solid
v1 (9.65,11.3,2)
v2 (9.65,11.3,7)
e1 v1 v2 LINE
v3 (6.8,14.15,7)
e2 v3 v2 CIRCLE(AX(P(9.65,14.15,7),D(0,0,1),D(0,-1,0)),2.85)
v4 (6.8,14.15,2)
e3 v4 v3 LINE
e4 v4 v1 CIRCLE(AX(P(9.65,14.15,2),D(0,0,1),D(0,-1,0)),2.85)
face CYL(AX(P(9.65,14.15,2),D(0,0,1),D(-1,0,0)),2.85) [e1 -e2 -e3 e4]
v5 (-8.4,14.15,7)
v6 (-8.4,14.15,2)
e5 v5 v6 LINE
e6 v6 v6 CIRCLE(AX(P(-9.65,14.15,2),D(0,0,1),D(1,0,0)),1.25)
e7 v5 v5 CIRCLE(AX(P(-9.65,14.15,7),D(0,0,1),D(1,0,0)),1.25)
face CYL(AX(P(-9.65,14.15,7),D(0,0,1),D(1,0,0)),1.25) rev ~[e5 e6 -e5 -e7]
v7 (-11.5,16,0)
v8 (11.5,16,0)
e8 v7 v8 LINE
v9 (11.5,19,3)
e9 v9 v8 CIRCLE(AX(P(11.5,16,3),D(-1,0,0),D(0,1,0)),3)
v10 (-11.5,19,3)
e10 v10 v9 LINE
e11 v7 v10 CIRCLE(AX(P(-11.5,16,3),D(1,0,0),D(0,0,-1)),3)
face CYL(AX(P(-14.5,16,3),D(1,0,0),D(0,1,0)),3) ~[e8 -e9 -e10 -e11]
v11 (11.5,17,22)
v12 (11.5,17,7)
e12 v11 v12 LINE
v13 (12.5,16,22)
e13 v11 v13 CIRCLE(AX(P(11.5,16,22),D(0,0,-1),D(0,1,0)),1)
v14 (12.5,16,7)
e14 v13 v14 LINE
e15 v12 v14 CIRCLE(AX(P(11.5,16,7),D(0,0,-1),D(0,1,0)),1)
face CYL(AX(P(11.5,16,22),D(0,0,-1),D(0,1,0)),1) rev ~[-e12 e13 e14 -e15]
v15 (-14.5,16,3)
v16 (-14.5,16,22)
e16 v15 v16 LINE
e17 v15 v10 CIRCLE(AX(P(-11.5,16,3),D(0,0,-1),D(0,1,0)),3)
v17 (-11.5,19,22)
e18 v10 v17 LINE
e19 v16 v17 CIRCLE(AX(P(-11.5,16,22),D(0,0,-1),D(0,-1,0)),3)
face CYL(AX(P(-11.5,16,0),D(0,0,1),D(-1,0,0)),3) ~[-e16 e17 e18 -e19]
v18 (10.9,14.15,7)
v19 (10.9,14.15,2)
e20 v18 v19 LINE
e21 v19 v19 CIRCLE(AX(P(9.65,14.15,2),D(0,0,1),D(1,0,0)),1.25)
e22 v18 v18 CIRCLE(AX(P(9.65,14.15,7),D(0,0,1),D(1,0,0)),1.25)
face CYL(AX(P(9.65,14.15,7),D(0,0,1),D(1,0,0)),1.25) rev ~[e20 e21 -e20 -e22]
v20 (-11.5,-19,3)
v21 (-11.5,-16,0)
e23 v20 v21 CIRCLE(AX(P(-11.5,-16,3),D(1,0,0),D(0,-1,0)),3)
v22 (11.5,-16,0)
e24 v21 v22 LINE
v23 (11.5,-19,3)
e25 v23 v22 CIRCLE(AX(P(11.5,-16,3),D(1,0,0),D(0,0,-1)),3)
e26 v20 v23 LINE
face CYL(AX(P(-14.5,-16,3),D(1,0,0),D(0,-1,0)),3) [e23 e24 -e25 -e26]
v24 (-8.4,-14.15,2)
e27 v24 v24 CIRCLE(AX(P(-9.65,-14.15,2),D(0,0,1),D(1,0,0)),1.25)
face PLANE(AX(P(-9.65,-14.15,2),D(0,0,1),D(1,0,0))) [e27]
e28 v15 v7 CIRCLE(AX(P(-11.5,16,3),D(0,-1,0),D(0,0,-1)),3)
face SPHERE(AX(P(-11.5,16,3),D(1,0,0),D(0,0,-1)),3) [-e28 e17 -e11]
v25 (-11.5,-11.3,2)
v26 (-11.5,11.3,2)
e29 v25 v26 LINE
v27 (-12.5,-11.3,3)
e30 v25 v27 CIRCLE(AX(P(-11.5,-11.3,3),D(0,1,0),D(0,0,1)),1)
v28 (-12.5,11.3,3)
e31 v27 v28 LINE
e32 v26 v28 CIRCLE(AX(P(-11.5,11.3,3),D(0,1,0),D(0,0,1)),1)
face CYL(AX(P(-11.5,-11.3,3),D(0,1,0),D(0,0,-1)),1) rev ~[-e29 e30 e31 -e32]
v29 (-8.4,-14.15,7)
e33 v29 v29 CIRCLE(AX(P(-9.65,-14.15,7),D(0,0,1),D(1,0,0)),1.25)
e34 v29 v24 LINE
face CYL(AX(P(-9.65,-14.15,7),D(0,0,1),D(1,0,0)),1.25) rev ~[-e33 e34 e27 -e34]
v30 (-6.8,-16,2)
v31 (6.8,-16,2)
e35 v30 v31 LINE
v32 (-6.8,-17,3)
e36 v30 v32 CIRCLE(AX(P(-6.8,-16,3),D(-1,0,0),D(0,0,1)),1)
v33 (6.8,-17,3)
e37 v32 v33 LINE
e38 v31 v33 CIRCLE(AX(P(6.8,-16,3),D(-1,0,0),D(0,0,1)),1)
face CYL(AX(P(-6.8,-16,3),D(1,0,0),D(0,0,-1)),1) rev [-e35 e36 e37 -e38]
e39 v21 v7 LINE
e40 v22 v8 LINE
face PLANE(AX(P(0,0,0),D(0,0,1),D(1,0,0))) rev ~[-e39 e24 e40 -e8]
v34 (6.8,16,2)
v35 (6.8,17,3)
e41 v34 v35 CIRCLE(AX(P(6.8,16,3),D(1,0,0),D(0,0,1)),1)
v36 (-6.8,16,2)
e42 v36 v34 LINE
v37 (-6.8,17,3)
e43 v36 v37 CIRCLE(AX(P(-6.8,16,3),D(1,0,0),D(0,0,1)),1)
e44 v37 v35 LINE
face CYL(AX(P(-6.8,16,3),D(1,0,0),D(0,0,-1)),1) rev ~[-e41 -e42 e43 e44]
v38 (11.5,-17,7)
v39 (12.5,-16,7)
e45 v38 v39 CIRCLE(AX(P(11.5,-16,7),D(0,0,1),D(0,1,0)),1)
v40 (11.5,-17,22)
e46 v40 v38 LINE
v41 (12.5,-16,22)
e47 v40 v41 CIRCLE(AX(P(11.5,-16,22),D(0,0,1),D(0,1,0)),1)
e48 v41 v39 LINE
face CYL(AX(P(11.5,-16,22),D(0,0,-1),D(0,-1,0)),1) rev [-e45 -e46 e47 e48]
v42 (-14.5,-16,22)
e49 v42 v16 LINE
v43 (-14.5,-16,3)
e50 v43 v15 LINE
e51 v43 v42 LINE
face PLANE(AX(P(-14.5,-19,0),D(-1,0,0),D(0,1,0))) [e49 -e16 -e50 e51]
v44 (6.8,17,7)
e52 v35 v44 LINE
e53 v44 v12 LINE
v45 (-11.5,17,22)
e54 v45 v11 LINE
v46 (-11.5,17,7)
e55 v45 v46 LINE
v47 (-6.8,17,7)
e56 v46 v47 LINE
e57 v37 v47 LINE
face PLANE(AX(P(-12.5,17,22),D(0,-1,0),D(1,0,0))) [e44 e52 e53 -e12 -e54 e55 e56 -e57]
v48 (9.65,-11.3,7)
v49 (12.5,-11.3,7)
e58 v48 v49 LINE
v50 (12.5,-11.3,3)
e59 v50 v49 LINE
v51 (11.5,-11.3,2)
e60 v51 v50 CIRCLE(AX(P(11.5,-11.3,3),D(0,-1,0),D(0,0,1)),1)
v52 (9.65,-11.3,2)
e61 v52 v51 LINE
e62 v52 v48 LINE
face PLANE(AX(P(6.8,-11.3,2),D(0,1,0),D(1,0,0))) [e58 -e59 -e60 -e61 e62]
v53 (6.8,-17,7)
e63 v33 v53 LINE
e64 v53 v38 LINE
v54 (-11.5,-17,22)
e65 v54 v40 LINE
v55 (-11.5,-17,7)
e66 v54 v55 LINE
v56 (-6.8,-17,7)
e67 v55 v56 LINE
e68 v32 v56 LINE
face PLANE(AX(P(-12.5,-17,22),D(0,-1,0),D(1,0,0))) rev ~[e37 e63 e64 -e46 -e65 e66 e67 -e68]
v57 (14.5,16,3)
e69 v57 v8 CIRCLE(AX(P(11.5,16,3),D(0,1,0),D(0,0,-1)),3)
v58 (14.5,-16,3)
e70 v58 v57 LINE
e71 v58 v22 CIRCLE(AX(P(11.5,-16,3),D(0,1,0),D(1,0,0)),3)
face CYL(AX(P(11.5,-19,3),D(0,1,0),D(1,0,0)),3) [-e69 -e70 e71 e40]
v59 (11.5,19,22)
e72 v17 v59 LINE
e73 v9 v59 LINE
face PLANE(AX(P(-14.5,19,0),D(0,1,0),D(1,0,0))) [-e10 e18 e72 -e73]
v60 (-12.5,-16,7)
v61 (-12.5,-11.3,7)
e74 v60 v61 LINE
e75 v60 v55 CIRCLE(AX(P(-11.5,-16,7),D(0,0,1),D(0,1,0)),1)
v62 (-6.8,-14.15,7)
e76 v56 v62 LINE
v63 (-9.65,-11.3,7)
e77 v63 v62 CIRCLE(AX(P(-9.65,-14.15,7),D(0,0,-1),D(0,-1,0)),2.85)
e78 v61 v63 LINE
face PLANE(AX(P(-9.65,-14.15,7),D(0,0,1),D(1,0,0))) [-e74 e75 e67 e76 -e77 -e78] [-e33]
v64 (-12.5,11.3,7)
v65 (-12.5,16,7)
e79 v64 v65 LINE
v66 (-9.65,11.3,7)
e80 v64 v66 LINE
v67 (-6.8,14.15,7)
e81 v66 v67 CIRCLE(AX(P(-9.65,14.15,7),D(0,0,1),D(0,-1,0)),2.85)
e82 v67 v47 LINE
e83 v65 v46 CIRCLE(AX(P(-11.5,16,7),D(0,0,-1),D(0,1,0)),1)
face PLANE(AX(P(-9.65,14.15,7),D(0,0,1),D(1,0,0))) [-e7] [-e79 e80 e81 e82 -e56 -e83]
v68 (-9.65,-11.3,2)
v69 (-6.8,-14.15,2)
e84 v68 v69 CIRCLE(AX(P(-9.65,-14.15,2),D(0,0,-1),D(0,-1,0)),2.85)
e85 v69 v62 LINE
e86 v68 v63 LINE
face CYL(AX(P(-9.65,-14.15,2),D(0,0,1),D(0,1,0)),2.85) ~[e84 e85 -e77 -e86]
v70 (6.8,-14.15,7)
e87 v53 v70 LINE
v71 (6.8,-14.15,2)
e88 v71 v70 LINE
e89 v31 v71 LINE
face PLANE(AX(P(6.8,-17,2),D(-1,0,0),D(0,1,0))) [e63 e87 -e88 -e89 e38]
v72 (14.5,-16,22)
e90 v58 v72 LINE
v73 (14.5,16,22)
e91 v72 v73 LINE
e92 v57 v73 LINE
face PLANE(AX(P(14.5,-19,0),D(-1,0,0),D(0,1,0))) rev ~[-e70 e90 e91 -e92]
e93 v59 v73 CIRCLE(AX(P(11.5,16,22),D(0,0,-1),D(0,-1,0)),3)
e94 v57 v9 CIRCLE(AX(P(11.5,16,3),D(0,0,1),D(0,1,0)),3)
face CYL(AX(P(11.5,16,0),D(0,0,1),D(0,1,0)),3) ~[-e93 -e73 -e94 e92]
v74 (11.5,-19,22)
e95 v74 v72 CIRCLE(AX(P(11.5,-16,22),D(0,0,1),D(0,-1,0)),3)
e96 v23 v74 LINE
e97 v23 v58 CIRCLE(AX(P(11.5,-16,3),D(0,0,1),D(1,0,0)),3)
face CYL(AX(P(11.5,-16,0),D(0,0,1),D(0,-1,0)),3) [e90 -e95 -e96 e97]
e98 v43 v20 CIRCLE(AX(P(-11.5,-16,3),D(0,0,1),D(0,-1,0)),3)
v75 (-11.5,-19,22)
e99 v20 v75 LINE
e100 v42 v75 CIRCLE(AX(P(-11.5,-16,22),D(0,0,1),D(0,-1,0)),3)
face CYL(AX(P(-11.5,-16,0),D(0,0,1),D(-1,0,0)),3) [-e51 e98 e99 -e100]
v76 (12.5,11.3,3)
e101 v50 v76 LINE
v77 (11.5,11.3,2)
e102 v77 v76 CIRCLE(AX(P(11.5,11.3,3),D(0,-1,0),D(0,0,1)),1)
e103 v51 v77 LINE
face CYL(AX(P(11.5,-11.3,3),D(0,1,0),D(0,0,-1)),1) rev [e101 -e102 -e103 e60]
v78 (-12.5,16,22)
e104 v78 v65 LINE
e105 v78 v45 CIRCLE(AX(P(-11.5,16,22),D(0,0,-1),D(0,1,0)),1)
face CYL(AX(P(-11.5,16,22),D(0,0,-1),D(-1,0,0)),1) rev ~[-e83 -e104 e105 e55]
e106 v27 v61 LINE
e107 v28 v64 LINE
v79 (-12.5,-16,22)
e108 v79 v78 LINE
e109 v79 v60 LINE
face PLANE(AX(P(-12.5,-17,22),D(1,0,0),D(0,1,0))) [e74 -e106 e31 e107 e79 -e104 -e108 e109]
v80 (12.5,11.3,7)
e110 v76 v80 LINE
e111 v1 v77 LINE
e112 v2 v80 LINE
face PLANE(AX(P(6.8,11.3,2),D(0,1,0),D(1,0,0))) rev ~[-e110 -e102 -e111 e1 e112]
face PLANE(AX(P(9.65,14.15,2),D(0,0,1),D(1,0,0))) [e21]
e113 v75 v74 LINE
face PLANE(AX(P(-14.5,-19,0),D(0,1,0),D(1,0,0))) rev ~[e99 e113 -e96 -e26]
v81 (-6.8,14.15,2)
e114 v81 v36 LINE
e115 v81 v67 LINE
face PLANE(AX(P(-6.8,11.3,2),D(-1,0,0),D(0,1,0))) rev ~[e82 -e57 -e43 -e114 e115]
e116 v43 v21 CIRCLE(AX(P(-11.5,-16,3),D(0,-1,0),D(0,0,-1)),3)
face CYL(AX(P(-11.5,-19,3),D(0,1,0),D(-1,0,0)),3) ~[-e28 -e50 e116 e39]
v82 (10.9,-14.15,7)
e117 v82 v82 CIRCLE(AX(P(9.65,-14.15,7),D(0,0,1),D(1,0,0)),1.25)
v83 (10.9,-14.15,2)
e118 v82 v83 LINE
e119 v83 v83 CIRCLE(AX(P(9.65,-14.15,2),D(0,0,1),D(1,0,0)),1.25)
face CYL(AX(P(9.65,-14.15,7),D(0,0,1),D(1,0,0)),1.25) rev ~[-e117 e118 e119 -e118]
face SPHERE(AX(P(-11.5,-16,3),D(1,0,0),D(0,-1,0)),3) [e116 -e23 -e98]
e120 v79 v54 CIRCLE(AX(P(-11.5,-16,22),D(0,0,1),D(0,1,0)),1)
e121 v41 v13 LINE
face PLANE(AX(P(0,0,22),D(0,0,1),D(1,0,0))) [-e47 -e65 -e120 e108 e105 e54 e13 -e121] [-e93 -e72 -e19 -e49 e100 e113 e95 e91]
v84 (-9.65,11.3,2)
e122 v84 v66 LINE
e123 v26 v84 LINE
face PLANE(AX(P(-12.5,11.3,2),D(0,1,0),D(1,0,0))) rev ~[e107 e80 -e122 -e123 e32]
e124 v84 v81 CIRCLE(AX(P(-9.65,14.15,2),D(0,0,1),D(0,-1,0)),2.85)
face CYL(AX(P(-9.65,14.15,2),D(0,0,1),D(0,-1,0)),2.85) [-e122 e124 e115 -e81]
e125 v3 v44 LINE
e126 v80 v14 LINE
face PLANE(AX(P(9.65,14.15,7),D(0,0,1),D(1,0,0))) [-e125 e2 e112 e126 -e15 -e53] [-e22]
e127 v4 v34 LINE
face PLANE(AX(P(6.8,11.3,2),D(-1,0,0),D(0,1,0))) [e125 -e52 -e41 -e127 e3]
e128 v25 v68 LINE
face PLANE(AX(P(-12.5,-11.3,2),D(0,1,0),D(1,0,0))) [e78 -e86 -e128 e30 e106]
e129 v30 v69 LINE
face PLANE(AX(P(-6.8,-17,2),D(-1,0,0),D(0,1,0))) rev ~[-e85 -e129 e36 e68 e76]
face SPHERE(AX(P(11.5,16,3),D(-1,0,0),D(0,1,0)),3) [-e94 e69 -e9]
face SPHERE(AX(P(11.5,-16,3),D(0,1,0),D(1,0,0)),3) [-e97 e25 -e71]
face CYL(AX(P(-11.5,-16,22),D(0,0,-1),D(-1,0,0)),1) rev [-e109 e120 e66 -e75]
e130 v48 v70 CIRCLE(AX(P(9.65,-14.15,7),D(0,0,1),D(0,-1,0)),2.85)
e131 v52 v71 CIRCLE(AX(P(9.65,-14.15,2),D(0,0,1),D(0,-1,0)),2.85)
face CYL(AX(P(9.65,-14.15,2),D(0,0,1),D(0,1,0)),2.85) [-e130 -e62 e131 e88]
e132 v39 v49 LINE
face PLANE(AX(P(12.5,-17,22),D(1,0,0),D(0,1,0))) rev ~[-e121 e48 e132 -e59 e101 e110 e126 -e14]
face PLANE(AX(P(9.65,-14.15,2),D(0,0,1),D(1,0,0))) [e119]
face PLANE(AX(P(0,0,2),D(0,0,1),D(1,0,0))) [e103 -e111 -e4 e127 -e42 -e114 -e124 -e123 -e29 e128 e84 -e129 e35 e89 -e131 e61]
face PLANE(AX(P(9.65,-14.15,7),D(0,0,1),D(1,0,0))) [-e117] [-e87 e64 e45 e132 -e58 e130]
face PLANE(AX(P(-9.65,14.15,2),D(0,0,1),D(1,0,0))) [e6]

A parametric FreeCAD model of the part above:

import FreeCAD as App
import Part
import Sketcher
from FreeCAD import Vector
Q = App.Units.Quantity


def edges_at(feature, points):
    """Names of the edges that pass closest to the given points."""
    edges = feature.Shape.Edges
    near = lambda p: min(range(len(edges)), key=lambda i: edges[i].distToShape(Part.Vertex(*p))[0])
    return sorted({f"Edge{near(p) + 1}" for p in points})


def add_polygon(sketch, points):
    """Adds a closed chain of lines whose ends are joined by coincident constraints."""
    first, n = sketch.GeometryCount, len(points)
    for a, b in zip(points, points[1:] + points[:1]):
        sketch.addGeometry(Part.LineSegment(App.Vector(*a, 0), App.Vector(*b, 0)), False)
    for i in range(n):
        sketch.addConstraint(Sketcher.Constraint("Coincident", first + i, 2, first + (i + 1) % n, 1))

doc = App.newDocument("Part")
body = doc.addObject("PartDesign::Body", "Body")

# Sketch on XY plane
sketch1 = body.newObject("Sketcher::SketchObject", "Sketch")
sketch1.AttachmentSupport = (doc.getObject("XY_Plane"), [""])
sketch1.MapMode = "FlatFace"
add_polygon(sketch1, [(-14, 19), (-14, -19), (14, -19), (14, 19)])  # lines 0-3
sketch1.addConstraint(Sketcher.Constraint("Vertical", 0))
sketch1.addConstraint(Sketcher.Constraint("Horizontal", 1))
sketch1.addConstraint(Sketcher.Constraint("Vertical", 2))
sketch1.addConstraint(Sketcher.Constraint("Horizontal", 3))
sketch1.addConstraint(Sketcher.Constraint("Symmetric", 0, 2, 2, 2, -1, 1))
sketch1.addConstraint(Sketcher.Constraint("DistanceX", 1, 1, 1, 2, Q("29 mm")))
sketch1.addConstraint(Sketcher.Constraint("DistanceY", 0, 2, 0, 1, Q("38 mm")))
pad1 = body.newObject("PartDesign::Pad", "Pad")
pad1.Profile = sketch1
pad1.Length = 22

# Sketch on XY plane
sketch2 = body.newObject("Sketcher::SketchObject", "Sketch001")
sketch2.AttachmentSupport = (doc.getObject("XY_Plane"), [""])
sketch2.MapMode = "FlatFace"
sketch2.AttachmentOffset = App.Placement(Vector(0, 0, 22), App.Rotation())
add_polygon(sketch2, [(-12, 17), (-12, -17), (12, -17), (12, 17)])  # lines 0-3
sketch2.addConstraint(Sketcher.Constraint("Vertical", 0))
sketch2.addConstraint(Sketcher.Constraint("Horizontal", 1))
sketch2.addConstraint(Sketcher.Constraint("Vertical", 2))
sketch2.addConstraint(Sketcher.Constraint("Horizontal", 3))
sketch2.addConstraint(Sketcher.Constraint("Symmetric", 0, 2, 2, 2, -1, 1))
sketch2.addConstraint(Sketcher.Constraint("DistanceX", 1, 1, 1, 2, Q("25 mm")))
sketch2.addConstraint(Sketcher.Constraint("DistanceY", 0, 2, 0, 1, Q("34 mm")))
pocket1 = body.newObject("PartDesign::Pocket", "Pocket")
pocket1.Profile = sketch2
pocket1.Length = 20

# Sketch on XY plane
sketch3 = body.newObject("Sketcher::SketchObject", "Sketch002")
sketch3.AttachmentSupport = (doc.getObject("XY_Plane"), [""])
sketch3.MapMode = "FlatFace"
sketch3.AttachmentOffset = App.Placement(Vector(0, 0, 2), App.Rotation())
add_polygon(sketch3, [(-12, 17), (-12, 11), (-7, 11), (-7, 17)])  # lines 0-3
add_polygon(sketch3, [(7, 17), (7, 11), (12, 11), (12, 17)])  # lines 4-7
add_polygon(sketch3, [(7, -11), (7, -17), (12, -17), (12, -11)])  # lines 8-11
add_polygon(sketch3, [(-12, -11), (-12, -17), (-7, -17), (-7, -11)])  # lines 12-15
sketch3.addConstraint(Sketcher.Constraint("Vertical", 0))
sketch3.addConstraint(Sketcher.Constraint("Horizontal", 1))
sketch3.addConstraint(Sketcher.Constraint("Vertical", 2))
sketch3.addConstraint(Sketcher.Constraint("Horizontal", 3))
sketch3.addConstraint(Sketcher.Constraint("Vertical", 4))
sketch3.addConstraint(Sketcher.Constraint("Horizontal", 5))
sketch3.addConstraint(Sketcher.Constraint("Vertical", 6))
sketch3.addConstraint(Sketcher.Constraint("Horizontal", 7))
sketch3.addConstraint(Sketcher.Constraint("Vertical", 8))
sketch3.addConstraint(Sketcher.Constraint("Horizontal", 9))
sketch3.addConstraint(Sketcher.Constraint("Vertical", 10))
sketch3.addConstraint(Sketcher.Constraint("Horizontal", 11))
sketch3.addConstraint(Sketcher.Constraint("Vertical", 12))
sketch3.addConstraint(Sketcher.Constraint("Horizontal", 13))
sketch3.addConstraint(Sketcher.Constraint("Vertical", 14))
sketch3.addConstraint(Sketcher.Constraint("Horizontal", 15))
sketch3.addConstraint(Sketcher.Constraint("Symmetric", 2, 2, 8, 2, -1, 1))
sketch3.addConstraint(Sketcher.Constraint("Symmetric", 0, 2, 10, 2, -1, 1))
sketch3.addConstraint(Sketcher.Constraint("Symmetric", 6, 2, 12, 2, -1, 1))
sketch3.addConstraint(Sketcher.Constraint("Symmetric", 4, 2, 14, 2, -1, 1))
sketch3.addConstraint(Sketcher.Constraint("Symmetric", 1, 2, 4, 2, -2))
sketch3.addConstraint(Sketcher.Constraint("Symmetric", 3, 2, 6, 2, -2))
sketch3.addConstraint(Sketcher.Constraint("Equal", 15, 0))
sketch3.addConstraint(Sketcher.Constraint("DistanceX", 1, 1, 1, 2, Q("5.7 mm")))
sketch3.addConstraint(Sketcher.Constraint("DistanceY", -1, 1, 2, 2, Q("17 mm")))
sketch3.addConstraint(Sketcher.Constraint("DistanceX", 0, 2, 5, 2, Q("25 mm")))
pad2 = body.newObject("PartDesign::Pad", "Pad001")
pad2.Profile = sketch3
pad2.Length = 5

# Sketch on XY plane
sketch4 = body.newObject("Sketcher::SketchObject", "Sketch003")
sketch4.AttachmentSupport = (doc.getObject("XY_Plane"), [""])
sketch4.MapMode = "FlatFace"
sketch4.AttachmentOffset = App.Placement(Vector(0, 0, 7), App.Rotation())
sketch4.addGeometry(Part.Circle(Vector(-9.7, 14.2, 0), Vector(0, 0, 1), 1.2), False)
sketch4.addGeometry(Part.Circle(Vector(9.7, 14.2, 0), Vector(0, 0, 1), 1.2), False)
sketch4.addGeometry(Part.Circle(Vector(9.7, -14.2, 0), Vector(0, 0, 1), 1.2), False)
sketch4.addGeometry(Part.Circle(Vector(-9.7, -14.2, 0), Vector(0, 0, 1), 1.2), False)
sketch4.addConstraint(Sketcher.Constraint("Equal", 0, 1))
sketch4.addConstraint(Sketcher.Constraint("Equal", 1, 2))
sketch4.addConstraint(Sketcher.Constraint("Equal", 2, 3))
sketch4.addConstraint(Sketcher.Constraint("Symmetric", 0, 3, 2, 3, -1, 1))
sketch4.addConstraint(Sketcher.Constraint("Symmetric", 1, 3, 3, 3, -1, 1))
sketch4.addConstraint(Sketcher.Constraint("Symmetric", 0, 3, 1, 3, -2))
sketch4.addConstraint(Sketcher.Constraint("Diameter", 0, Q("2.5 mm")))
sketch4.addConstraint(Sketcher.Constraint("DistanceX", 0, 3, 1, 3, Q("19.3 mm")))
sketch4.addConstraint(Sketcher.Constraint("DistanceY", 2, 3, 1, 3, Q("28.3 mm")))
pocket2 = body.newObject("PartDesign::Pocket", "Pocket001")
pocket2.Profile = sketch4
pocket2.Length = 5
doc.recompute()

fillet = body.newObject("PartDesign::Fillet", "Fillet")
fillet.Base = (pocket2, edges_at(pocket2, [
    (6.8, 11.3, 4.5),
    (-6.8, 11.3, 4.5),
    (-6.8, -11.3, 4.5),
    (6.8, -11.3, 4.5),
]))
fillet.Radius = 2.85
doc.recompute()

fillet2 = body.newObject("PartDesign::Fillet", "Fillet001")
fillet2.Base = (fillet, edges_at(fillet, [
    (-12.5, 0, 2),
    (0, 17, 2),
    (12.5, 0, 2),
    (0, -17, 2),
    (-12.5, 17, 14.5),
    (-12.5, -17, 14.5),
    (12.5, 17, 14.5),
    (12.5, -17, 14.5),
]))
fillet2.Radius = 1
doc.recompute()

fillet3 = body.newObject("PartDesign::Fillet", "Fillet002")
fillet3.Base = (fillet2, edges_at(fillet2, [
    (0, 19, 0),
    (14.5, 19, 11),
    (14.5, 0, 0),
    (14.5, -19, 11),
    (0, -19, 0),
    (-14.5, -19, 11),
    (-14.5, 0, 0),
    (-14.5, 19, 11),
]))
fillet3.Radius = 3

doc.recompute()
